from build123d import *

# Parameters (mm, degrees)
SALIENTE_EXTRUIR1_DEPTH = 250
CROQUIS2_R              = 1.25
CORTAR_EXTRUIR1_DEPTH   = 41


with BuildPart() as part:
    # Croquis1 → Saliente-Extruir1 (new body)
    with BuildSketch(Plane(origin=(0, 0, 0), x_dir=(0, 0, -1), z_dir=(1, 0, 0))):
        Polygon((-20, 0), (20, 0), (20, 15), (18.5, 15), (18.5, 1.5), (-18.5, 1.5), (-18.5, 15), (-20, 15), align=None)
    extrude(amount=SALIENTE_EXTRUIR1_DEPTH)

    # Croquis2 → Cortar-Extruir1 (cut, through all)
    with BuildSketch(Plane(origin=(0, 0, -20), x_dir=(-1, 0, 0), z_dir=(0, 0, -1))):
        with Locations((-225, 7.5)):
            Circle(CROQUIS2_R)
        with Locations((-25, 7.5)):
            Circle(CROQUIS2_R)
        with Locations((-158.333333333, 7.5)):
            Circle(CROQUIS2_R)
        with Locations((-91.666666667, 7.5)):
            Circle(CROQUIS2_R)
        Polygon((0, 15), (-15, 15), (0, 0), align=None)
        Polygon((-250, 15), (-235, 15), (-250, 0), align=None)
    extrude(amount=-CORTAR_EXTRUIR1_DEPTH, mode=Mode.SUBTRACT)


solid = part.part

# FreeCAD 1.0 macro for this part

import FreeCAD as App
import Part
import Sketcher
from FreeCAD import Vector


def add_polygon(sketch, points):
    """Adds a closed chain of lines whose ends are joined by coincident constraints."""
    first, n = sketch.GeometryCount, len(points)
    for a, b in zip(points, points[1:] + points[:1]):
        sketch.addGeometry(Part.LineSegment(App.Vector(*a, 0), App.Vector(*b, 0)), False)
    for i in range(n):
        sketch.addConstraint(Sketcher.Constraint("Coincident", first + i, 2, first + (i + 1) % n, 1))

doc = App.newDocument("Part")
body = doc.addObject("PartDesign::Body", "Body")

# Sketch on YZ plane
sketch1 = body.newObject("Sketcher::SketchObject", "Sketch")
sketch1.AttachmentSupport = (doc.getObject("YZ_Plane"), [""])
sketch1.MapMode = "FlatFace"
add_polygon(sketch1, [(0, 20), (0, -20), (15, -20), (15, -18.5), (1.5, -18.5), (1.5, 18.5), (15, 18.5), (15, 20)])  # lines 0-7
sketch1.addConstraint([
    Sketcher.Constraint("Vertical", 0),
    Sketcher.Constraint("Horizontal", 1),
    Sketcher.Constraint("Vertical", 2),
    Sketcher.Constraint("Horizontal", 3),
    Sketcher.Constraint("Vertical", 4),
    Sketcher.Constraint("Horizontal", 5),
    Sketcher.Constraint("Vertical", 6),
    Sketcher.Constraint("Horizontal", 7),
    Sketcher.Constraint("Symmetric", 0, 2, 7, 2, -1, 1),
    Sketcher.Constraint("Symmetric", 2, 2, 5, 2, -1),
    Sketcher.Constraint("DistanceX", 1, 1, 1, 2, 15.0),
    Sketcher.Constraint("DistanceY", 0, 2, 0, 1, 40.0),
    Sketcher.Constraint("DistanceY", 4, 1, 4, 2, 37.0),
    Sketcher.Constraint("DistanceX", 3, 2, 3, 1, 13.5),
])
pad1 = body.newObject("PartDesign::Pad", "Pad")
pad1.Profile = sketch1
pad1.Length = 250

# Sketch on XY plane
sketch2 = body.newObject("Sketcher::SketchObject", "Sketch001")
sketch2.AttachmentSupport = (doc.getObject("XY_Plane"), [""])
sketch2.MapMode = "FlatFace"
sketch2.AttachmentOffset = App.Placement(Vector(0, 0, -20), App.Rotation())
sketch2.addGeometry(Part.Circle(Vector(225, 7.5, 0), Vector(0, 0, 1), 1.25), False)  # 0
sketch2.addGeometry(Part.Circle(Vector(25, 7.5, 0), Vector(0, 0, 1), 1.25), False)  # 1
sketch2.addGeometry(Part.Circle(Vector(158.333333, 7.5, 0), Vector(0, 0, 1), 1.25), False)  # 2
sketch2.addGeometry(Part.Circle(Vector(91.666667, 7.5, 0), Vector(0, 0, 1), 1.25), False)  # 3
add_polygon(sketch2, [(0, 15), (15, 15), (0, 0)])  # lines 4-6
add_polygon(sketch2, [(235, 15), (250, 15), (250, 0)])  # lines 7-9
sketch2.addConstraint([
    Sketcher.Constraint("Horizontal", 4),
    Sketcher.Constraint("Vertical", 6),
    Sketcher.Constraint("Horizontal", 7),
    Sketcher.Constraint("Vertical", 8),
    Sketcher.Constraint("Coincident", 5, 2, -1, 1),
    Sketcher.Constraint("Equal", 0, 1),
    Sketcher.Constraint("Equal", 1, 2),
    Sketcher.Constraint("Equal", 2, 3),
    Sketcher.Constraint("PointOnObject", 8, 2, -1),
    Sketcher.Constraint("Perpendicular", 5, 9),
    Sketcher.Constraint("Horizontal", 0, 3, 1, 3),
    Sketcher.Constraint("Horizontal", 1, 3, 2, 3),
    Sketcher.Constraint("Horizontal", 2, 3, 3, 3),
    Sketcher.Constraint("Horizontal", 6, 2, 7, 2),
    Sketcher.Constraint("Equal", 4, 7),
    Sketcher.Constraint("Diameter", 0, 2.5),
    Sketcher.Constraint("DistanceX", 4, 1, 4, 2, 15.0),
    Sketcher.Constraint("DistanceX", -1, 1, 0, 3, 225.0),
    Sketcher.Constraint("DistanceX", -1, 1, 1, 3, 25.0),
    Sketcher.Constraint("DistanceX", -1, 1, 7, 2, 250.0),
    Sketcher.Constraint("DistanceY", -1, 1, 0, 3, 7.5),
    Sketcher.Constraint("DistanceX", -1, 1, 2, 3, 158.333333),
    Sketcher.Constraint("DistanceX", -1, 1, 3, 3, 91.666667),
])
pocket1 = body.newObject("PartDesign::Pocket", "Pocket")
pocket1.Profile = sketch2
pocket1.Type = "ThroughAll"
pocket1.Reversed = True

doc.recompute()
